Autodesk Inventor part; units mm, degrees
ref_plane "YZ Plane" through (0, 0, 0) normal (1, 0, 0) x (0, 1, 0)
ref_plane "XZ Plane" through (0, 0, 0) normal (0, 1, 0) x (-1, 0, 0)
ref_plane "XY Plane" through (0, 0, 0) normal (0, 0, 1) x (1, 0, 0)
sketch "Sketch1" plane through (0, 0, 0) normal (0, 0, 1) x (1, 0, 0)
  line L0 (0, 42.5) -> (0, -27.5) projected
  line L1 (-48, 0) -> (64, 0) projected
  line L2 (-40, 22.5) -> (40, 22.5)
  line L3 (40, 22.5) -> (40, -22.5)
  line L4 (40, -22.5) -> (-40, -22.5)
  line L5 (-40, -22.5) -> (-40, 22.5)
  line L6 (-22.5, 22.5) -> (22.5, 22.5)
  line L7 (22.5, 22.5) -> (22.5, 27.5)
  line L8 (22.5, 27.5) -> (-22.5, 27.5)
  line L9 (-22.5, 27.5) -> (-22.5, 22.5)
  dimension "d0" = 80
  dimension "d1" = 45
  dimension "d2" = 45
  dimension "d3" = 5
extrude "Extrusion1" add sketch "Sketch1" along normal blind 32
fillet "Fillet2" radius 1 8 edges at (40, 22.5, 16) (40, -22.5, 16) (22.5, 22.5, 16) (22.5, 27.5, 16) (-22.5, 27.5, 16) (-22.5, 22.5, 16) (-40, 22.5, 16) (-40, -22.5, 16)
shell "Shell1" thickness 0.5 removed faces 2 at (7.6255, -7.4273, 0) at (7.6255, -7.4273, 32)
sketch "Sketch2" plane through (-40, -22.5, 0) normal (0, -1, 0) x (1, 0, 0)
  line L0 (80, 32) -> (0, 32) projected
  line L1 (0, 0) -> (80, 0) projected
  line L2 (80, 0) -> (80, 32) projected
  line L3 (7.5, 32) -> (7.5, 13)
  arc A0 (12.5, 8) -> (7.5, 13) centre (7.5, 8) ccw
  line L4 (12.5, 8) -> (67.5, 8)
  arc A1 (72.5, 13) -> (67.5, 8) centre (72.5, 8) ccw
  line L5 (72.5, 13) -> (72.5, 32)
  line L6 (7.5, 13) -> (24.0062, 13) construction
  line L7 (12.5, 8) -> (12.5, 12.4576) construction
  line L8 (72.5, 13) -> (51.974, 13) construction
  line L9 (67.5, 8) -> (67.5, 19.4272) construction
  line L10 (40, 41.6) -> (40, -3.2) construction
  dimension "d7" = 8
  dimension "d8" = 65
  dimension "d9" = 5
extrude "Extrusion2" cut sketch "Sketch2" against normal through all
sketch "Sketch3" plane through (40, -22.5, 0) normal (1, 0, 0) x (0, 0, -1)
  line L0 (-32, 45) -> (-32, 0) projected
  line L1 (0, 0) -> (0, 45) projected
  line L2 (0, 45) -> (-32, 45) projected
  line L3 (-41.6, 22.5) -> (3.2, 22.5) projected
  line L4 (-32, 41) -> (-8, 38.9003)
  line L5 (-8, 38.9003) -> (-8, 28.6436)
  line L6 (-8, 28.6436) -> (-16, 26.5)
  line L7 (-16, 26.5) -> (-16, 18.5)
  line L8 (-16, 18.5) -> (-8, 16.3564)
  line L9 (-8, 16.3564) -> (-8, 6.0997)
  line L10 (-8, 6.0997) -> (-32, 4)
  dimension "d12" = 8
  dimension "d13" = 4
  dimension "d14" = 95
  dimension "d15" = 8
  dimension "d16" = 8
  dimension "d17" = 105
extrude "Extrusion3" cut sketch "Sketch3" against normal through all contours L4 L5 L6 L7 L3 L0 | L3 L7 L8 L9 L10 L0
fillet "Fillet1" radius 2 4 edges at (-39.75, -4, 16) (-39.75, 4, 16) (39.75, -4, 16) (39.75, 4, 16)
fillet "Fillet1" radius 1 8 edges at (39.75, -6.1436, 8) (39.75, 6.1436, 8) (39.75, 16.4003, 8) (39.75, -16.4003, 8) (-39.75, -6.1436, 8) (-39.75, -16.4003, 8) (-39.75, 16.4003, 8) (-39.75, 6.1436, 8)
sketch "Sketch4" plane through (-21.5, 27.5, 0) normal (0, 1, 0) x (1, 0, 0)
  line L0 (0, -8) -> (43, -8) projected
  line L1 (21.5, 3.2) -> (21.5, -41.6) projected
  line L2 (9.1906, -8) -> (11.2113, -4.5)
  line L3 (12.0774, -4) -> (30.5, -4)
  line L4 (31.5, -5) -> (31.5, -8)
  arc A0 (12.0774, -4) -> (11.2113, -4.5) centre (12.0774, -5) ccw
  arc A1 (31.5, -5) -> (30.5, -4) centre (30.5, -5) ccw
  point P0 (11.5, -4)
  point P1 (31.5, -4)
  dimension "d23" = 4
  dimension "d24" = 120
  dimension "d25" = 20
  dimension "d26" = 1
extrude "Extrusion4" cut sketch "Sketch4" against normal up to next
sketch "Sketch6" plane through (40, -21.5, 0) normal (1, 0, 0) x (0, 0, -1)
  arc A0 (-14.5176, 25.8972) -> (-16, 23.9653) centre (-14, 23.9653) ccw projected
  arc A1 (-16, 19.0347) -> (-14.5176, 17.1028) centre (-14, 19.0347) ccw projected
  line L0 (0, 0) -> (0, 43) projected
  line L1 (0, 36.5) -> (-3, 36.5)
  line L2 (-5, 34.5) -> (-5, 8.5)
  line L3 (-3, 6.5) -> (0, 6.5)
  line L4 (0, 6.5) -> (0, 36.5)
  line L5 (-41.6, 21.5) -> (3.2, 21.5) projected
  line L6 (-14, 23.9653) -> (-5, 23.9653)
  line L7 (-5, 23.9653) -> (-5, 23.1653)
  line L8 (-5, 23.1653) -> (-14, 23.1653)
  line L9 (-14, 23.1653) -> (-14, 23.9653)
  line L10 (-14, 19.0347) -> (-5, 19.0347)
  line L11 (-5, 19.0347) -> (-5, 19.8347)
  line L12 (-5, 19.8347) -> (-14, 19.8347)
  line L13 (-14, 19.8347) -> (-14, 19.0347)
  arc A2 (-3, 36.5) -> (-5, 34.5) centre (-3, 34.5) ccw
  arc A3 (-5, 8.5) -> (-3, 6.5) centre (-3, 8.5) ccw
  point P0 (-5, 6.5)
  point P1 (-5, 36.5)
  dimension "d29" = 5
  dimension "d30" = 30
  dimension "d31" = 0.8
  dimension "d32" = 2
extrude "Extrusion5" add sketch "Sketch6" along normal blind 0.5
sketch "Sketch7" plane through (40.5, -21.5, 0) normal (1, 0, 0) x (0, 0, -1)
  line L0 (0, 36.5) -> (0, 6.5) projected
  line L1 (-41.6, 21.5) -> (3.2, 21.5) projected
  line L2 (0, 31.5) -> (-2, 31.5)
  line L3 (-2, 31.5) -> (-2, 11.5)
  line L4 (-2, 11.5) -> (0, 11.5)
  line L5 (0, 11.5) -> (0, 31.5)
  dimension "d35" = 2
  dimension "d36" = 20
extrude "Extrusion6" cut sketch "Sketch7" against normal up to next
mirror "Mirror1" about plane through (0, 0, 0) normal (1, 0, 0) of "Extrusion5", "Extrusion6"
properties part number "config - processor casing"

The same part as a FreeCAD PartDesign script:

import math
import FreeCAD as App
import Part
import Sketcher

V = App.Vector
Q = App.Units.Quantity


def edges_at(feature, points):
    """Names of the edges that pass closest to the given points."""
    edges = feature.Shape.Edges
    near = lambda p: min(range(len(edges)), key=lambda i: edges[i].distToShape(Part.Vertex(*p))[0])
    return sorted({f"Edge{near(p) + 1}" for p in points})


def faces_at(feature, points):
    """Names of the faces that lie closest to the given points."""
    faces = feature.Shape.Faces
    near = lambda p: min(range(len(faces)), key=lambda i: faces[i].distToShape(Part.Vertex(*p))[0])
    return sorted({f"Face{near(p) + 1}" for p in points})


def add_polygon(sketch, points):
    """Adds a closed chain of lines whose ends are joined by coincident constraints."""
    first, n = sketch.GeometryCount, len(points)
    for a, b in zip(points, points[1:] + points[:1]):
        sketch.addGeometry(Part.LineSegment(App.Vector(*a, 0), App.Vector(*b, 0)), False)
    for i in range(n):
        sketch.addConstraint(Sketcher.Constraint("Coincident", first + i, 2, first + (i + 1) % n, 1))

doc = App.newDocument("Part")
body = doc.addObject("PartDesign::Body", "Body")

# Sketch on XY plane
sketch1 = body.newObject("Sketcher::SketchObject", "Sketch")
sketch1.AttachmentSupport = (doc.getObject("XY_Plane"), [""])
sketch1.MapMode = "FlatFace"
add_polygon(sketch1, [(22.5, 27.5), (-22.5, 27.5), (-22.5, 22.5), (-40, 22.5), (-40, -22.5), (40, -22.5), (40, 22.5), (22.5, 22.5)])  # lines 0-7
sketch1.addConstraint([
    Sketcher.Constraint("Horizontal", 0),
    Sketcher.Constraint("Vertical", 1),
    Sketcher.Constraint("Horizontal", 2),
    Sketcher.Constraint("Vertical", 3),
    Sketcher.Constraint("Horizontal", 4),
    Sketcher.Constraint("Vertical", 5),
    Sketcher.Constraint("Horizontal", 6),
    Sketcher.Constraint("Vertical", 7),
    Sketcher.Constraint("Symmetric", 2, 2, 4, 2, -1, 1),
    Sketcher.Constraint("Symmetric", 1, 2, 6, 2, -2),
    Sketcher.Constraint("Equal", 0, 3),
    Sketcher.Constraint("DistanceX", 0, 2, 0, 1, 45.0),
    Sketcher.Constraint("DistanceX", 4, 1, 4, 2, 80.0),
    Sketcher.Constraint("DistanceY", 1, 2, 1, 1, 5.0),
])
pad1 = body.newObject("PartDesign::Pad", "Pad")
pad1.Profile = sketch1
pad1.Length = 32
doc.recompute()

fillet = body.newObject("PartDesign::Fillet", "Fillet")
fillet.Base = (pad1, edges_at(pad1, [
    (40, 22.5, 16),
    (40, -22.5, 16),
    (22.5, 22.5, 16),
    (22.5, 27.5, 16),
    (-22.5, 27.5, 16),
    (-22.5, 22.5, 16),
    (-40, 22.5, 16),
    (-40, -22.5, 16),
]))
fillet.Radius = 1
doc.recompute()

thickness = body.newObject("PartDesign::Thickness", "Thickness")
thickness.Base = (fillet, faces_at(fillet, [(7.625, -7.427, 0), (7.625, -7.427, 32)]))
thickness.Value = 0.5
thickness.Reversed = True
thickness.Join = "Intersection"

# Sketch on XZ plane
sketch2 = body.newObject("Sketcher::SketchObject", "Sketch001")
sketch2.AttachmentSupport = (doc.getObject("XZ_Plane"), [""])
sketch2.MapMode = "FlatFace"
sketch2.AttachmentOffset = App.Placement(V(0, 0, 22.5), App.Rotation())
sketch2.addGeometry([
    Part.LineSegment(V(32.5, 13, 0), V(32.5, 32, 0)),  # 0
    Part.LineSegment(V(32.5, 32, 0), V(-32.5, 32, 0)),  # 1
    Part.LineSegment(V(-32.5, 32, 0), V(-32.5, 13, 0)),  # 2
    Part.ArcOfCircle(Part.Circle(V(-32.5, 8, 0), V(0, 0, 1), 5), math.radians(0), math.radians(90)),  # 3
    Part.LineSegment(V(-27.5, 8, 0), V(27.5, 8, 0)),  # 4
    Part.ArcOfCircle(Part.Circle(V(32.5, 8, 0), V(0, 0, 1), 5), math.radians(90), math.radians(180)),  # 5
], False)
sketch2.addConstraint([
    Sketcher.Constraint("Coincident", 0, 2, 1, 1),
    Sketcher.Constraint("Coincident", 1, 2, 2, 1),
    Sketcher.Constraint("Coincident", 2, 2, 3, 2),
    Sketcher.Constraint("Coincident", 3, 1, 4, 1),
    Sketcher.Constraint("Coincident", 4, 2, 5, 2),
    Sketcher.Constraint("Coincident", 5, 1, 0, 1),
    Sketcher.Constraint("Vertical", 0),
    Sketcher.Constraint("Horizontal", 1),
    Sketcher.Constraint("Vertical", 2),
    Sketcher.Constraint("Horizontal", 4),
    Sketcher.Constraint("Equal", 3, 5),
    Sketcher.Constraint("Symmetric", 3, 3, 5, 3, -2),
    Sketcher.Constraint("Horizontal", 5, 3, 3, 1),
    Sketcher.Constraint("Vertical", 5, 3, 0, 2),
    Sketcher.Constraint("Vertical", 3, 3, 1, 2),
    Sketcher.Constraint("Radius", 3, 5.0),
    Sketcher.Constraint("DistanceX", 1, 2, 1, 1, 65.0),
    Sketcher.Constraint("DistanceY", -1, 1, 3, 3, 8.0),
    Sketcher.Constraint("DistanceY", 0, 1, 0, 2, 19.0),
])
pocket1 = body.newObject("PartDesign::Pocket", "Pocket")
pocket1.Profile = sketch2
pocket1.Type = "ThroughAll"

# Sketch on YZ plane
sketch3 = body.newObject("Sketcher::SketchObject", "Sketch002")
sketch3.AttachmentSupport = (doc.getObject("YZ_Plane"), [""])
sketch3.MapMode = "FlatFace"
sketch3.AttachmentOffset = App.Placement(V(0, 0, 40), App.Rotation())
add_polygon(sketch3, [(16.4003, 8), (18.5, 32), (-18.5, 32), (-16.4003, 8), (-6.1436, 8), (-4, 16), (4, 16), (6.1436, 8)])  # lines 0-7
sketch3.addConstraint([
    Sketcher.Constraint("Horizontal", 1),
    Sketcher.Constraint("Horizontal", 3),
    Sketcher.Constraint("Horizontal", 5),
    Sketcher.Constraint("Horizontal", 7),
    Sketcher.Constraint("Symmetric", 3, 2, 6, 2, -2),
    Sketcher.Constraint("Equal", 3, 7),
    Sketcher.Constraint("Equal", 0, 2),
    Sketcher.Constraint("Equal", 4, 6),
    Sketcher.Constraint("DistanceX", 5, 1, 5, 2, 8.0),
    Sketcher.Constraint("DistanceY", -1, 1, 2, 2, 8.0),
    Sketcher.Constraint("DistanceY", 3, 2, 4, 2, 8.0),
    Sketcher.Constraint("DistanceX", 1, 2, 1, 1, 37.0),
    Sketcher.Constraint("Angle", 0, Q("85 deg")),
    Sketcher.Constraint("Angle", 4, Q("75 deg")),
    Sketcher.Constraint("DistanceY", -1, 1, 0, 2, 32.0),
])
pocket2 = body.newObject("PartDesign::Pocket", "Pocket001")
pocket2.Profile = sketch3
pocket2.Type = "ThroughAll"
doc.recompute()

fillet2 = body.newObject("PartDesign::Fillet", "Fillet001")
fillet2.Base = (pocket2, edges_at(pocket2, [
    (-39.75, -4, 16),
    (-39.75, 4, 16),
    (39.75, -4, 16),
    (39.75, 4, 16),
]))
fillet2.Radius = 2
doc.recompute()

fillet3 = body.newObject("PartDesign::Fillet", "Fillet002")
fillet3.Base = (fillet2, edges_at(fillet2, [
    (39.75, -6.144, 8),
    (39.75, 6.144, 8),
    (39.75, 16.4, 8),
    (39.75, -16.4, 8),
    (-39.75, -6.144, 8),
    (-39.75, -16.4, 8),
    (-39.75, 16.4, 8),
    (-39.75, 6.144, 8),
]))
fillet3.Radius = 1

# Sketch on XZ plane
sketch4 = body.newObject("Sketcher::SketchObject", "Sketch003")
sketch4.AttachmentSupport = (doc.getObject("XZ_Plane"), [""])
sketch4.MapMode = "FlatFace"
sketch4.AttachmentOffset = App.Placement(V(0, 0, -27.5), App.Rotation())
sketch4.addGeometry([
    Part.LineSegment(V(-10.2887, 4.5, 0), V(-12.3094, 8, 0)),  # 0
    Part.LineSegment(V(-12.3094, 8, 0), V(10, 8, 0)),  # 1
    Part.LineSegment(V(10, 8, 0), V(10, 5, 0)),  # 2
    Part.ArcOfCircle(Part.Circle(V(9, 5, 0), V(0, 0, 1), 1), math.radians(-90), math.radians(0)),  # 3
    Part.LineSegment(V(9, 4, 0), V(-9.4226, 4, 0)),  # 4
    Part.ArcOfCircle(Part.Circle(V(-9.4226, 5, 0), V(0, 0, 1), 1), math.radians(-150.002137), math.radians(-90)),  # 5
], False)
sketch4.addConstraint([
    Sketcher.Constraint("Coincident", 0, 2, 1, 1),
    Sketcher.Constraint("Coincident", 1, 2, 2, 1),
    Sketcher.Constraint("Tangent", 2, 2, 3, 2),
    Sketcher.Constraint("Tangent", 3, 1, 4, 1),
    Sketcher.Constraint("Tangent", 4, 2, 5, 2),
    Sketcher.Constraint("Tangent", 5, 1, 0, 1),
    Sketcher.Constraint("Horizontal", 1),
    Sketcher.Constraint("Vertical", 2),
    Sketcher.Constraint("Horizontal", 4),
    Sketcher.Constraint("Equal", 3, 5),
    Sketcher.Constraint("Radius", 3, 1.0),
    Sketcher.Constraint("Angle", 0, Q("119.9997 deg")),
    Sketcher.Constraint("DistanceY", -1, 1, 3, 1, 4.0),
    Sketcher.Constraint("DistanceY", 3, 1, 1, 2, 4.0),
    Sketcher.Constraint("DistanceX", -1, 1, 3, 3, 9.0),
    Sketcher.Constraint("DistanceX", 1, 1, 1, 2, 22.3094),
])
pocket3 = body.newObject("PartDesign::Pocket", "Pocket002")
pocket3.Profile = sketch4
pocket3.Type = "UpToFirst"
pocket3.Reversed = True

# Sketch on YZ plane
sketch5 = body.newObject("Sketcher::SketchObject", "Sketch004")
sketch5.AttachmentSupport = (doc.getObject("YZ_Plane"), [""])
sketch5.MapMode = "FlatFace"
sketch5.AttachmentOffset = App.Placement(V(0, 0, 40), App.Rotation())
sketch5.addGeometry([
    Part.LineSegment(V(-15, 3, 0), V(-15, 0, 0)),  # 0
    Part.LineSegment(V(-15, 0, 0), V(15, 0, 0)),  # 1
    Part.LineSegment(V(15, 0, 0), V(15, 3, 0)),  # 2
    Part.ArcOfCircle(Part.Circle(V(13, 3, 0), V(0, 0, 1), 2), math.radians(0), math.radians(90)),  # 3
    Part.LineSegment(V(13, 5, 0), V(2.4653, 5, 0)),  # 4
    Part.LineSegment(V(2.4653, 5, 0), V(2.4653, 14, 0)),  # 5
    Part.LineSegment(V(2.4653, 14, 0), V(1.6653, 14, 0)),  # 6
    Part.LineSegment(V(1.6653, 14, 0), V(1.6653, 5, 0)),  # 7
    Part.LineSegment(V(1.6653, 5, 0), V(-1.6653, 5, 0)),  # 8
    Part.LineSegment(V(-1.6653, 5, 0), V(-1.6653, 14, 0)),  # 9
    Part.LineSegment(V(-1.6653, 14, 0), V(-2.4653, 14, 0)),  # 10
    Part.LineSegment(V(-2.4653, 14, 0), V(-2.4653, 5, 0)),  # 11
    Part.LineSegment(V(-2.4653, 5, 0), V(-13, 5, 0)),  # 12
    Part.ArcOfCircle(Part.Circle(V(-13, 3, 0), V(0, 0, 1), 2), math.radians(90), math.radians(180)),  # 13
], False)
sketch5.addConstraint([
    Sketcher.Constraint("Coincident", 0, 2, 1, 1),
    Sketcher.Constraint("Coincident", 1, 2, 2, 1),
    Sketcher.Constraint("Tangent", 2, 2, 3, 1),
    Sketcher.Constraint("Tangent", 3, 2, 4, 1),
    Sketcher.Constraint("Coincident", 4, 2, 5, 1),
    Sketcher.Constraint("Coincident", 5, 2, 6, 1),
    Sketcher.Constraint("Coincident", 6, 2, 7, 1),
    Sketcher.Constraint("Coincident", 7, 2, 8, 1),
    Sketcher.Constraint("Coincident", 8, 2, 9, 1),
    Sketcher.Constraint("Coincident", 9, 2, 10, 1),
    Sketcher.Constraint("Coincident", 10, 2, 11, 1),
    Sketcher.Constraint("Coincident", 11, 2, 12, 1),
    Sketcher.Constraint("Tangent", 12, 2, 13, 1),
    Sketcher.Constraint("Tangent", 13, 2, 0, 1),
    Sketcher.Constraint("Vertical", 0),
    Sketcher.Constraint("Horizontal", 1),
    Sketcher.Constraint("Vertical", 2),
    Sketcher.Constraint("Horizontal", 4),
    Sketcher.Constraint("Vertical", 5),
    Sketcher.Constraint("Horizontal", 6),
    Sketcher.Constraint("Vertical", 7),
    Sketcher.Constraint("Horizontal", 8),
    Sketcher.Constraint("Vertical", 9),
    Sketcher.Constraint("Horizontal", 10),
    Sketcher.Constraint("Vertical", 11),
    Sketcher.Constraint("Horizontal", 12),
    Sketcher.Constraint("Equal", 3, 13),
    Sketcher.Constraint("Symmetric", 0, 2, 1, 2, -1, 1),
    Sketcher.Constraint("Symmetric", 6, 2, 9, 2, -2),
    Sketcher.Constraint("Symmetric", 4, 2, 11, 2, -2),
    Sketcher.Constraint("Horizontal", 4, 2, 7, 2),
    Sketcher.Constraint("Radius", 3, 2.0),
    Sketcher.Constraint("DistanceX", 1, 1, 1, 2, 30.0),
    Sketcher.Constraint("DistanceX", 6, 2, 6, 1, 0.8),
    Sketcher.Constraint("DistanceY", -1, 1, 3, 2, 5.0),
    Sketcher.Constraint("DistanceY", 5, 1, 5, 2, 9.0),
    Sketcher.Constraint("DistanceX", 4, 2, 4, 1, 10.5347),
])
pad2 = body.newObject("PartDesign::Pad", "Pad001")
pad2.Profile = sketch5
pad2.Length = 0.5

# Sketch on YZ plane
sketch6 = body.newObject("Sketcher::SketchObject", "Sketch005")
sketch6.AttachmentSupport = (doc.getObject("YZ_Plane"), [""])
sketch6.MapMode = "FlatFace"
sketch6.AttachmentOffset = App.Placement(V(0, 0, 40.5), App.Rotation())
add_polygon(sketch6, [(10, 0), (10, 2), (-10, 2), (-10, 0)])  # lines 0-3
sketch6.addConstraint([
    Sketcher.Constraint("Vertical", 0),
    Sketcher.Constraint("Horizontal", 1),
    Sketcher.Constraint("Vertical", 2),
    Sketcher.Constraint("Horizontal", 3),
    Sketcher.Constraint("Symmetric", 2, 2, 3, 2, -1, 1),
    Sketcher.Constraint("DistanceX", 1, 2, 1, 1, 20.0),
    Sketcher.Constraint("DistanceY", 0, 1, 0, 2, 2.0),
])
pocket4 = body.newObject("PartDesign::Pocket", "Pocket003")
pocket4.Profile = sketch6
pocket4.Type = "UpToFirst"
doc.recompute()

mirrored = body.newObject("PartDesign::Mirrored", "Mirrored")
mirrored.Originals = [pad2, pocket4]
mirrored.MirrorPlane = (doc.getObject("YZ_Plane"), [""])
body.Tip = mirrored

doc.recompute()
